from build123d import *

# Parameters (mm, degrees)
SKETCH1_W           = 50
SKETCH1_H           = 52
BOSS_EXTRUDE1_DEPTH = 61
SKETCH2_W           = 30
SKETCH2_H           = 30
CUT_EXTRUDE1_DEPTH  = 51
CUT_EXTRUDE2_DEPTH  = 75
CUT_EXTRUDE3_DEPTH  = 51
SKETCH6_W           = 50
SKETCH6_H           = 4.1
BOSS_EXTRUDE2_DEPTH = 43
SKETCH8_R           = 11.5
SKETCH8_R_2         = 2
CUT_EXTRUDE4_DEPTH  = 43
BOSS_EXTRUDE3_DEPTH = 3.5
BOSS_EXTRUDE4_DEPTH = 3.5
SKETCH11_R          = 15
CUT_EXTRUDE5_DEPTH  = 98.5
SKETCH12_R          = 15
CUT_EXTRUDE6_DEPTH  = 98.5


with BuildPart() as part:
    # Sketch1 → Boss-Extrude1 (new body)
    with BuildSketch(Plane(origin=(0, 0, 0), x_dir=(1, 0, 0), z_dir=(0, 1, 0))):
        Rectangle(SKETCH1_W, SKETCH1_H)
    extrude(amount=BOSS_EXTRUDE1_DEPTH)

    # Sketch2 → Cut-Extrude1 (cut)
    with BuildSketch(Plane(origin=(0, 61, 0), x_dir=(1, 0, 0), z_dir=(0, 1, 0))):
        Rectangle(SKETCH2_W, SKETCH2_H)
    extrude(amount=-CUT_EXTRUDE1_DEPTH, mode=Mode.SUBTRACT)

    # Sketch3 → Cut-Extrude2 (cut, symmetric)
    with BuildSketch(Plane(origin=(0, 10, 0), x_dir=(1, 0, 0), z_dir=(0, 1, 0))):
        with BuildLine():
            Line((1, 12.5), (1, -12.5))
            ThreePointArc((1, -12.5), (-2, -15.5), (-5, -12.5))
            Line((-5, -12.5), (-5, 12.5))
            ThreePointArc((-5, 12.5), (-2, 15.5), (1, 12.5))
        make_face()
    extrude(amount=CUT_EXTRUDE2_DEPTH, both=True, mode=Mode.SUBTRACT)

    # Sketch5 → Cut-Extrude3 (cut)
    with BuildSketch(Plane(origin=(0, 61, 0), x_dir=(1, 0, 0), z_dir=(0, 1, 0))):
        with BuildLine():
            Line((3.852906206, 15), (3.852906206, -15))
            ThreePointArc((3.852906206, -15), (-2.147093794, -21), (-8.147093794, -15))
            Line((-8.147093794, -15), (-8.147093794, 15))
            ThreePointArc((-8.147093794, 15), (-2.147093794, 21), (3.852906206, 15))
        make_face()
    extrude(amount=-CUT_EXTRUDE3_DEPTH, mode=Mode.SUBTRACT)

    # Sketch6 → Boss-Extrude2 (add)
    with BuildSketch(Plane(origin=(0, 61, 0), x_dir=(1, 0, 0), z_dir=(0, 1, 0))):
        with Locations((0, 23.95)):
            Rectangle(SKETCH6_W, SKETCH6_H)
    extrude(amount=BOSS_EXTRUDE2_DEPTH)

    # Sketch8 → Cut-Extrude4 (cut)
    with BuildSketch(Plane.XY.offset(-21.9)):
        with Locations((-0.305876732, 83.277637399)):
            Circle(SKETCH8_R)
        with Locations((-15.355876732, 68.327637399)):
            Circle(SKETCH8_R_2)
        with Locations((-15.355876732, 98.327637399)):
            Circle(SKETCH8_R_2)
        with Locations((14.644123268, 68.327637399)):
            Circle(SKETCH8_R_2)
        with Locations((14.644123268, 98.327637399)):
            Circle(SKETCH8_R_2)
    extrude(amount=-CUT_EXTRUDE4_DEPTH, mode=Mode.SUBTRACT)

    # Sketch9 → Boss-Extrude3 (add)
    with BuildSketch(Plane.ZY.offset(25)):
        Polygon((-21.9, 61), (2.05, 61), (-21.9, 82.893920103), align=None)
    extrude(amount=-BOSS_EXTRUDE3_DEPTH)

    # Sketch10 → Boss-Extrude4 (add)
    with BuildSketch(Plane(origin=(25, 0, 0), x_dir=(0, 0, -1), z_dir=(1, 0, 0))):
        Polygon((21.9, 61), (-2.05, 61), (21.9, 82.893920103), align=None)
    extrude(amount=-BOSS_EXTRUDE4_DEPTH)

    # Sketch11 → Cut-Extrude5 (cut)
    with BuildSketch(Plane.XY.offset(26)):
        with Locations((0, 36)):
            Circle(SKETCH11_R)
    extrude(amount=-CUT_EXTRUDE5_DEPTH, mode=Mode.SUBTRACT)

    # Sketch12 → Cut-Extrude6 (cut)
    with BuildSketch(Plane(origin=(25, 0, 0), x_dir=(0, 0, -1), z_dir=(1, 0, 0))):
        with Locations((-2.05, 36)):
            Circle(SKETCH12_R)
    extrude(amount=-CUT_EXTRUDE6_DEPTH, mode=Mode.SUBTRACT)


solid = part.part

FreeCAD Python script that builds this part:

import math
import FreeCAD as App
import Part
import Sketcher

doc = App.newDocument("Part")
body = doc.addObject("PartDesign::Body", "Body")

# Sketch on XZ plane
sketch1 = body.newObject("Sketcher::SketchObject", "Sketch")
sketch1.AttachmentSupport = (doc.getObject("XZ_Plane"), [""])
sketch1.MapMode = "FlatFace"
sketch1.addGeometry([
    Part.LineSegment(App.Vector(-25, -26, 0), App.Vector(-25, 26, 0)),
    Part.LineSegment(App.Vector(-25, 26, 0), App.Vector(25, 26, 0)),
    Part.LineSegment(App.Vector(25, 26, 0), App.Vector(25, -26, 0)),
    Part.LineSegment(App.Vector(25, -26, 0), App.Vector(-25, -26, 0)),
], False)
sketch1.addConstraint([
    Sketcher.Constraint("Coincident", 0, 2, 1, 1),
    Sketcher.Constraint("Coincident", 1, 2, 2, 1),
    Sketcher.Constraint("Coincident", 2, 2, 3, 1),
    Sketcher.Constraint("Coincident", 3, 2, 0, 1),
    Sketcher.Constraint("Vertical", 0),
    Sketcher.Constraint("Horizontal", 1),
    Sketcher.Constraint("Vertical", 2),
    Sketcher.Constraint("Horizontal", 3),
    Sketcher.Constraint("Symmetric", 0, 2, 2, 2, -1, 1),
    Sketcher.Constraint("DistanceX", 1, 1, 1, 2, 50.0),
    Sketcher.Constraint("DistanceY", 0, 1, 0, 2, 52.0),
])
pad1 = body.newObject("PartDesign::Pad", "Pad")
pad1.Profile = sketch1
pad1.Length = 61
pad1.Reversed = True

# Sketch on XZ plane
sketch2 = body.newObject("Sketcher::SketchObject", "Sketch001")
sketch2.AttachmentSupport = (doc.getObject("XZ_Plane"), [""])
sketch2.MapMode = "FlatFace"
sketch2.AttachmentOffset = App.Placement(App.Vector(0, 0, -61), App.Rotation())
sketch2.addGeometry([
    Part.LineSegment(App.Vector(-15, -15, 0), App.Vector(-15, 15, 0)),
    Part.LineSegment(App.Vector(-15, 15, 0), App.Vector(15, 15, 0)),
    Part.LineSegment(App.Vector(15, 15, 0), App.Vector(15, -15, 0)),
    Part.LineSegment(App.Vector(15, -15, 0), App.Vector(-15, -15, 0)),
], False)
sketch2.addConstraint([
    Sketcher.Constraint("Coincident", 0, 2, 1, 1),
    Sketcher.Constraint("Coincident", 1, 2, 2, 1),
    Sketcher.Constraint("Coincident", 2, 2, 3, 1),
    Sketcher.Constraint("Coincident", 3, 2, 0, 1),
    Sketcher.Constraint("Vertical", 0),
    Sketcher.Constraint("Horizontal", 1),
    Sketcher.Constraint("Vertical", 2),
    Sketcher.Constraint("Horizontal", 3),
    Sketcher.Constraint("Symmetric", 0, 2, 2, 2, -1, 1),
    Sketcher.Constraint("Equal", 3, 0),
    Sketcher.Constraint("DistanceX", 1, 1, 1, 2, 30.0),
])
pocket1 = body.newObject("PartDesign::Pocket", "Pocket")
pocket1.Profile = sketch2
pocket1.Length = 51
pocket1.Reversed = True

# Sketch on XZ plane
sketch3 = body.newObject("Sketcher::SketchObject", "Sketch002")
sketch3.AttachmentSupport = (doc.getObject("XZ_Plane"), [""])
sketch3.MapMode = "FlatFace"
sketch3.AttachmentOffset = App.Placement(App.Vector(0, 0, -10), App.Rotation())
sketch3.addGeometry([
    Part.LineSegment(App.Vector(1, 12.5, 0), App.Vector(1, -12.5, 0)),
    Part.ArcOfCircle(Part.Circle(App.Vector(-2, -12.5, 0), App.Vector(0, 0, 1), 3), math.radians(180), math.radians(360)),
    Part.LineSegment(App.Vector(-5, -12.5, 0), App.Vector(-5, 12.5, 0)),
    Part.ArcOfCircle(Part.Circle(App.Vector(-2, 12.5, 0), App.Vector(0, 0, 1), 3), math.radians(0), math.radians(180)),
], False)
sketch3.addConstraint([
    Sketcher.Constraint("Tangent", 0, 2, 1, 2),
    Sketcher.Constraint("Tangent", 1, 1, 2, 1),
    Sketcher.Constraint("Tangent", 2, 2, 3, 2),
    Sketcher.Constraint("Tangent", 3, 1, 0, 1),
    Sketcher.Constraint("Vertical", 0),
    Sketcher.Constraint("Vertical", 2),
    Sketcher.Constraint("Radius", 1, 3.0),
    Sketcher.Constraint("DistanceY", 0, 2, 0, 1, 25.0),
    Sketcher.Constraint("DistanceX", 1, 3, -1, 1, 2.0),
    Sketcher.Constraint("DistanceY", 1, 3, -1, 1, 12.5),
])
pocket2 = body.newObject("PartDesign::Pocket", "Pocket001")
pocket2.Profile = sketch3
pocket2.Length = 150
pocket2.Midplane = True

# Sketch on XZ plane
sketch4 = body.newObject("Sketcher::SketchObject", "Sketch003")
sketch4.AttachmentSupport = (doc.getObject("XZ_Plane"), [""])
sketch4.MapMode = "FlatFace"
sketch4.AttachmentOffset = App.Placement(App.Vector(0, 0, -61), App.Rotation())
sketch4.addGeometry([
    Part.LineSegment(App.Vector(3.852906, 15, 0), App.Vector(3.852906, -15, 0)),
    Part.ArcOfCircle(Part.Circle(App.Vector(-2.147094, -15, 0), App.Vector(0, 0, 1), 6), math.radians(180), math.radians(360)),
    Part.LineSegment(App.Vector(-8.147094, -15, 0), App.Vector(-8.147094, 15, 0)),
    Part.ArcOfCircle(Part.Circle(App.Vector(-2.147094, 15, 0), App.Vector(0, 0, 1), 6), math.radians(0), math.radians(180)),
], False)
sketch4.addConstraint([
    Sketcher.Constraint("Tangent", 0, 2, 1, 2),
    Sketcher.Constraint("Tangent", 1, 1, 2, 1),
    Sketcher.Constraint("Tangent", 2, 2, 3, 2),
    Sketcher.Constraint("Tangent", 3, 1, 0, 1),
    Sketcher.Constraint("Vertical", 0),
    Sketcher.Constraint("Vertical", 2),
    Sketcher.Constraint("Radius", 1, 6.0),
    Sketcher.Constraint("DistanceY", 0, 2, 0, 1, 30.0),
    Sketcher.Constraint("DistanceY", 1, 3, -1, 1, 15.0),
    Sketcher.Constraint("DistanceX", 1, 3, -1, 1, 2.147094),
])
pocket3 = body.newObject("PartDesign::Pocket", "Pocket002")
pocket3.Profile = sketch4
pocket3.Length = 51
pocket3.Reversed = True

# Sketch on XZ plane
sketch5 = body.newObject("Sketcher::SketchObject", "Sketch004")
sketch5.AttachmentSupport = (doc.getObject("XZ_Plane"), [""])
sketch5.MapMode = "FlatFace"
sketch5.AttachmentOffset = App.Placement(App.Vector(0, 0, -61), App.Rotation())
sketch5.addGeometry([
    Part.LineSegment(App.Vector(-25, -26, 0), App.Vector(-25, -21.9, 0)),
    Part.LineSegment(App.Vector(-25, -21.9, 0), App.Vector(25, -21.9, 0)),
    Part.LineSegment(App.Vector(25, -21.9, 0), App.Vector(25, -26, 0)),
    Part.LineSegment(App.Vector(25, -26, 0), App.Vector(-25, -26, 0)),
], False)
sketch5.addConstraint([
    Sketcher.Constraint("Coincident", 0, 2, 1, 1),
    Sketcher.Constraint("Coincident", 1, 2, 2, 1),
    Sketcher.Constraint("Coincident", 2, 2, 3, 1),
    Sketcher.Constraint("Coincident", 3, 2, 0, 1),
    Sketcher.Constraint("Vertical", 0),
    Sketcher.Constraint("Horizontal", 1),
    Sketcher.Constraint("Vertical", 2),
    Sketcher.Constraint("Horizontal", 3),
    Sketcher.Constraint("DistanceX", 1, 1, 1, 2, 50.0),
    Sketcher.Constraint("DistanceY", 0, 1, 0, 2, 4.1),
    Sketcher.Constraint("DistanceX", 0, 2, -1, 1, 25.0),
    Sketcher.Constraint("DistanceY", 2, 2, -1, 1, 26.0),
])
pad2 = body.newObject("PartDesign::Pad", "Pad001")
pad2.Profile = sketch5
pad2.Length = 43
pad2.Reversed = True

# Sketch on XY plane
sketch6 = body.newObject("Sketcher::SketchObject", "Sketch005")
sketch6.AttachmentSupport = (doc.getObject("XY_Plane"), [""])
sketch6.MapMode = "FlatFace"
sketch6.AttachmentOffset = App.Placement(App.Vector(0, 0, -21.9), App.Rotation())
sketch6.addGeometry([
    Part.Circle(App.Vector(-0.305877, 83.277637, 0), App.Vector(0, 0, 1), 11.5),  # 0
    Part.Circle(App.Vector(-15.355877, 68.327637, 0), App.Vector(0, 0, 1), 2),  # 1
    Part.Circle(App.Vector(-15.355877, 98.327637, 0), App.Vector(0, 0, 1), 2),  # 2
    Part.Circle(App.Vector(14.644123, 68.327637, 0), App.Vector(0, 0, 1), 2),  # 3
    Part.Circle(App.Vector(14.644123, 98.327637, 0), App.Vector(0, 0, 1), 2),  # 4
], False)
sketch6.addConstraint([
    Sketcher.Constraint("Equal", 1, 2),
    Sketcher.Constraint("Equal", 2, 3),
    Sketcher.Constraint("Equal", 3, 4),
    Sketcher.Constraint("Horizontal", 1, 3, 3, 3),
    Sketcher.Constraint("Horizontal", 2, 3, 4, 3),
    Sketcher.Constraint("Vertical", 1, 3, 2, 3),
    Sketcher.Constraint("Vertical", 3, 3, 4, 3),
    Sketcher.Constraint("Diameter", 0, 23.0),
    Sketcher.Constraint("Diameter", 1, 4.0),
    Sketcher.Constraint("DistanceY", 1, 3, 2, 3, 30.0),
    Sketcher.Constraint("DistanceX", 1, 3, 3, 3, 30.0),
    Sketcher.Constraint("DistanceX", 1, 3, 0, 3, 15.05),
    Sketcher.Constraint("DistanceY", 1, 3, 0, 3, 14.95),
    Sketcher.Constraint("DistanceX", 0, 3, -1, 1, 0.305877),
    Sketcher.Constraint("DistanceY", -1, 1, 0, 3, 83.277637),
])
pocket4 = body.newObject("PartDesign::Pocket", "Pocket003")
pocket4.Profile = sketch6
pocket4.Length = 43

# Sketch on YZ plane
sketch7 = body.newObject("Sketcher::SketchObject", "Sketch006")
sketch7.AttachmentSupport = (doc.getObject("YZ_Plane"), [""])
sketch7.MapMode = "FlatFace"
sketch7.AttachmentOffset = App.Placement(App.Vector(0, 0, -25), App.Rotation())
sketch7.addGeometry([
    Part.LineSegment(App.Vector(61, -21.9, 0), App.Vector(61, 2.05, 0)),
    Part.LineSegment(App.Vector(61, 2.05, 0), App.Vector(82.89392, -21.9, 0)),
    Part.LineSegment(App.Vector(82.89392, -21.9, 0), App.Vector(61, -21.9, 0)),
], False)
sketch7.addConstraint([
    Sketcher.Constraint("Coincident", 0, 2, 1, 1),
    Sketcher.Constraint("Coincident", 1, 2, 2, 1),
    Sketcher.Constraint("Coincident", 2, 2, 0, 1),
    Sketcher.Constraint("Vertical", 0),
    Sketcher.Constraint("Horizontal", 2),
    Sketcher.Constraint("DistanceX", -1, 1, 0, 2, 61.0),
    Sketcher.Constraint("DistanceY", 0, 1, 0, 2, 23.95),
    Sketcher.Constraint("DistanceY", 1, 2, -1, 1, 21.9),
    Sketcher.Constraint("DistanceX", 2, 2, 2, 1, 21.89392),
])
pad3 = body.newObject("PartDesign::Pad", "Pad002")
pad3.Profile = sketch7
pad3.Length = 3.5

# Sketch on YZ plane
sketch8 = body.newObject("Sketcher::SketchObject", "Sketch007")
sketch8.AttachmentSupport = (doc.getObject("YZ_Plane"), [""])
sketch8.MapMode = "FlatFace"
sketch8.AttachmentOffset = App.Placement(App.Vector(0, 0, 25), App.Rotation())
sketch8.addGeometry([
    Part.LineSegment(App.Vector(61, 2.05, 0), App.Vector(61, -21.9, 0)),
    Part.LineSegment(App.Vector(61, -21.9, 0), App.Vector(82.89392, -21.9, 0)),
    Part.LineSegment(App.Vector(82.89392, -21.9, 0), App.Vector(61, 2.05, 0)),
], False)
sketch8.addConstraint([
    Sketcher.Constraint("Coincident", 0, 2, 1, 1),
    Sketcher.Constraint("Coincident", 1, 2, 2, 1),
    Sketcher.Constraint("Coincident", 2, 2, 0, 1),
    Sketcher.Constraint("Vertical", 0),
    Sketcher.Constraint("Horizontal", 1),
    Sketcher.Constraint("DistanceX", -1, 1, 0, 2, 61.0),
    Sketcher.Constraint("DistanceY", 0, 2, 0, 1, 23.95),
    Sketcher.Constraint("DistanceY", 0, 2, -1, 1, 21.9),
    Sketcher.Constraint("DistanceX", 1, 1, 1, 2, 21.89392),
])
pad4 = body.newObject("PartDesign::Pad", "Pad003")
pad4.Profile = sketch8
pad4.Length = 3.5
pad4.Reversed = True

# Sketch on XY plane
sketch9 = body.newObject("Sketcher::SketchObject", "Sketch008")
sketch9.AttachmentSupport = (doc.getObject("XY_Plane"), [""])
sketch9.MapMode = "FlatFace"
sketch9.AttachmentOffset = App.Placement(App.Vector(0, 0, 26), App.Rotation())
sketch9.addGeometry(Part.Circle(App.Vector(0, 36, 0), App.Vector(0, 0, 1), 15), False)
sketch9.addConstraint([
    Sketcher.Constraint("PointOnObject", 0, 3, -2),
    Sketcher.Constraint("Diameter", 0, 30.0),
    Sketcher.Constraint("DistanceY", -1, 1, 0, 3, 36.0),
])
pocket5 = body.newObject("PartDesign::Pocket", "Pocket004")
pocket5.Profile = sketch9
pocket5.Length = 98.5

# Sketch on YZ plane
sketch10 = body.newObject("Sketcher::SketchObject", "Sketch009")
sketch10.AttachmentSupport = (doc.getObject("YZ_Plane"), [""])
sketch10.MapMode = "FlatFace"
sketch10.AttachmentOffset = App.Placement(App.Vector(0, 0, 25), App.Rotation())
sketch10.addGeometry(Part.Circle(App.Vector(36, 2.05, 0), App.Vector(0, 0, 1), 15), False)
sketch10.addConstraint([
    Sketcher.Constraint("Diameter", 0, 30.0),
    Sketcher.Constraint("DistanceX", -1, 1, 0, 3, 36.0),
    Sketcher.Constraint("DistanceY", -1, 1, 0, 3, 2.05),
])
pocket6 = body.newObject("PartDesign::Pocket", "Pocket005")
pocket6.Profile = sketch10
pocket6.Length = 98.5

doc.recompute()
